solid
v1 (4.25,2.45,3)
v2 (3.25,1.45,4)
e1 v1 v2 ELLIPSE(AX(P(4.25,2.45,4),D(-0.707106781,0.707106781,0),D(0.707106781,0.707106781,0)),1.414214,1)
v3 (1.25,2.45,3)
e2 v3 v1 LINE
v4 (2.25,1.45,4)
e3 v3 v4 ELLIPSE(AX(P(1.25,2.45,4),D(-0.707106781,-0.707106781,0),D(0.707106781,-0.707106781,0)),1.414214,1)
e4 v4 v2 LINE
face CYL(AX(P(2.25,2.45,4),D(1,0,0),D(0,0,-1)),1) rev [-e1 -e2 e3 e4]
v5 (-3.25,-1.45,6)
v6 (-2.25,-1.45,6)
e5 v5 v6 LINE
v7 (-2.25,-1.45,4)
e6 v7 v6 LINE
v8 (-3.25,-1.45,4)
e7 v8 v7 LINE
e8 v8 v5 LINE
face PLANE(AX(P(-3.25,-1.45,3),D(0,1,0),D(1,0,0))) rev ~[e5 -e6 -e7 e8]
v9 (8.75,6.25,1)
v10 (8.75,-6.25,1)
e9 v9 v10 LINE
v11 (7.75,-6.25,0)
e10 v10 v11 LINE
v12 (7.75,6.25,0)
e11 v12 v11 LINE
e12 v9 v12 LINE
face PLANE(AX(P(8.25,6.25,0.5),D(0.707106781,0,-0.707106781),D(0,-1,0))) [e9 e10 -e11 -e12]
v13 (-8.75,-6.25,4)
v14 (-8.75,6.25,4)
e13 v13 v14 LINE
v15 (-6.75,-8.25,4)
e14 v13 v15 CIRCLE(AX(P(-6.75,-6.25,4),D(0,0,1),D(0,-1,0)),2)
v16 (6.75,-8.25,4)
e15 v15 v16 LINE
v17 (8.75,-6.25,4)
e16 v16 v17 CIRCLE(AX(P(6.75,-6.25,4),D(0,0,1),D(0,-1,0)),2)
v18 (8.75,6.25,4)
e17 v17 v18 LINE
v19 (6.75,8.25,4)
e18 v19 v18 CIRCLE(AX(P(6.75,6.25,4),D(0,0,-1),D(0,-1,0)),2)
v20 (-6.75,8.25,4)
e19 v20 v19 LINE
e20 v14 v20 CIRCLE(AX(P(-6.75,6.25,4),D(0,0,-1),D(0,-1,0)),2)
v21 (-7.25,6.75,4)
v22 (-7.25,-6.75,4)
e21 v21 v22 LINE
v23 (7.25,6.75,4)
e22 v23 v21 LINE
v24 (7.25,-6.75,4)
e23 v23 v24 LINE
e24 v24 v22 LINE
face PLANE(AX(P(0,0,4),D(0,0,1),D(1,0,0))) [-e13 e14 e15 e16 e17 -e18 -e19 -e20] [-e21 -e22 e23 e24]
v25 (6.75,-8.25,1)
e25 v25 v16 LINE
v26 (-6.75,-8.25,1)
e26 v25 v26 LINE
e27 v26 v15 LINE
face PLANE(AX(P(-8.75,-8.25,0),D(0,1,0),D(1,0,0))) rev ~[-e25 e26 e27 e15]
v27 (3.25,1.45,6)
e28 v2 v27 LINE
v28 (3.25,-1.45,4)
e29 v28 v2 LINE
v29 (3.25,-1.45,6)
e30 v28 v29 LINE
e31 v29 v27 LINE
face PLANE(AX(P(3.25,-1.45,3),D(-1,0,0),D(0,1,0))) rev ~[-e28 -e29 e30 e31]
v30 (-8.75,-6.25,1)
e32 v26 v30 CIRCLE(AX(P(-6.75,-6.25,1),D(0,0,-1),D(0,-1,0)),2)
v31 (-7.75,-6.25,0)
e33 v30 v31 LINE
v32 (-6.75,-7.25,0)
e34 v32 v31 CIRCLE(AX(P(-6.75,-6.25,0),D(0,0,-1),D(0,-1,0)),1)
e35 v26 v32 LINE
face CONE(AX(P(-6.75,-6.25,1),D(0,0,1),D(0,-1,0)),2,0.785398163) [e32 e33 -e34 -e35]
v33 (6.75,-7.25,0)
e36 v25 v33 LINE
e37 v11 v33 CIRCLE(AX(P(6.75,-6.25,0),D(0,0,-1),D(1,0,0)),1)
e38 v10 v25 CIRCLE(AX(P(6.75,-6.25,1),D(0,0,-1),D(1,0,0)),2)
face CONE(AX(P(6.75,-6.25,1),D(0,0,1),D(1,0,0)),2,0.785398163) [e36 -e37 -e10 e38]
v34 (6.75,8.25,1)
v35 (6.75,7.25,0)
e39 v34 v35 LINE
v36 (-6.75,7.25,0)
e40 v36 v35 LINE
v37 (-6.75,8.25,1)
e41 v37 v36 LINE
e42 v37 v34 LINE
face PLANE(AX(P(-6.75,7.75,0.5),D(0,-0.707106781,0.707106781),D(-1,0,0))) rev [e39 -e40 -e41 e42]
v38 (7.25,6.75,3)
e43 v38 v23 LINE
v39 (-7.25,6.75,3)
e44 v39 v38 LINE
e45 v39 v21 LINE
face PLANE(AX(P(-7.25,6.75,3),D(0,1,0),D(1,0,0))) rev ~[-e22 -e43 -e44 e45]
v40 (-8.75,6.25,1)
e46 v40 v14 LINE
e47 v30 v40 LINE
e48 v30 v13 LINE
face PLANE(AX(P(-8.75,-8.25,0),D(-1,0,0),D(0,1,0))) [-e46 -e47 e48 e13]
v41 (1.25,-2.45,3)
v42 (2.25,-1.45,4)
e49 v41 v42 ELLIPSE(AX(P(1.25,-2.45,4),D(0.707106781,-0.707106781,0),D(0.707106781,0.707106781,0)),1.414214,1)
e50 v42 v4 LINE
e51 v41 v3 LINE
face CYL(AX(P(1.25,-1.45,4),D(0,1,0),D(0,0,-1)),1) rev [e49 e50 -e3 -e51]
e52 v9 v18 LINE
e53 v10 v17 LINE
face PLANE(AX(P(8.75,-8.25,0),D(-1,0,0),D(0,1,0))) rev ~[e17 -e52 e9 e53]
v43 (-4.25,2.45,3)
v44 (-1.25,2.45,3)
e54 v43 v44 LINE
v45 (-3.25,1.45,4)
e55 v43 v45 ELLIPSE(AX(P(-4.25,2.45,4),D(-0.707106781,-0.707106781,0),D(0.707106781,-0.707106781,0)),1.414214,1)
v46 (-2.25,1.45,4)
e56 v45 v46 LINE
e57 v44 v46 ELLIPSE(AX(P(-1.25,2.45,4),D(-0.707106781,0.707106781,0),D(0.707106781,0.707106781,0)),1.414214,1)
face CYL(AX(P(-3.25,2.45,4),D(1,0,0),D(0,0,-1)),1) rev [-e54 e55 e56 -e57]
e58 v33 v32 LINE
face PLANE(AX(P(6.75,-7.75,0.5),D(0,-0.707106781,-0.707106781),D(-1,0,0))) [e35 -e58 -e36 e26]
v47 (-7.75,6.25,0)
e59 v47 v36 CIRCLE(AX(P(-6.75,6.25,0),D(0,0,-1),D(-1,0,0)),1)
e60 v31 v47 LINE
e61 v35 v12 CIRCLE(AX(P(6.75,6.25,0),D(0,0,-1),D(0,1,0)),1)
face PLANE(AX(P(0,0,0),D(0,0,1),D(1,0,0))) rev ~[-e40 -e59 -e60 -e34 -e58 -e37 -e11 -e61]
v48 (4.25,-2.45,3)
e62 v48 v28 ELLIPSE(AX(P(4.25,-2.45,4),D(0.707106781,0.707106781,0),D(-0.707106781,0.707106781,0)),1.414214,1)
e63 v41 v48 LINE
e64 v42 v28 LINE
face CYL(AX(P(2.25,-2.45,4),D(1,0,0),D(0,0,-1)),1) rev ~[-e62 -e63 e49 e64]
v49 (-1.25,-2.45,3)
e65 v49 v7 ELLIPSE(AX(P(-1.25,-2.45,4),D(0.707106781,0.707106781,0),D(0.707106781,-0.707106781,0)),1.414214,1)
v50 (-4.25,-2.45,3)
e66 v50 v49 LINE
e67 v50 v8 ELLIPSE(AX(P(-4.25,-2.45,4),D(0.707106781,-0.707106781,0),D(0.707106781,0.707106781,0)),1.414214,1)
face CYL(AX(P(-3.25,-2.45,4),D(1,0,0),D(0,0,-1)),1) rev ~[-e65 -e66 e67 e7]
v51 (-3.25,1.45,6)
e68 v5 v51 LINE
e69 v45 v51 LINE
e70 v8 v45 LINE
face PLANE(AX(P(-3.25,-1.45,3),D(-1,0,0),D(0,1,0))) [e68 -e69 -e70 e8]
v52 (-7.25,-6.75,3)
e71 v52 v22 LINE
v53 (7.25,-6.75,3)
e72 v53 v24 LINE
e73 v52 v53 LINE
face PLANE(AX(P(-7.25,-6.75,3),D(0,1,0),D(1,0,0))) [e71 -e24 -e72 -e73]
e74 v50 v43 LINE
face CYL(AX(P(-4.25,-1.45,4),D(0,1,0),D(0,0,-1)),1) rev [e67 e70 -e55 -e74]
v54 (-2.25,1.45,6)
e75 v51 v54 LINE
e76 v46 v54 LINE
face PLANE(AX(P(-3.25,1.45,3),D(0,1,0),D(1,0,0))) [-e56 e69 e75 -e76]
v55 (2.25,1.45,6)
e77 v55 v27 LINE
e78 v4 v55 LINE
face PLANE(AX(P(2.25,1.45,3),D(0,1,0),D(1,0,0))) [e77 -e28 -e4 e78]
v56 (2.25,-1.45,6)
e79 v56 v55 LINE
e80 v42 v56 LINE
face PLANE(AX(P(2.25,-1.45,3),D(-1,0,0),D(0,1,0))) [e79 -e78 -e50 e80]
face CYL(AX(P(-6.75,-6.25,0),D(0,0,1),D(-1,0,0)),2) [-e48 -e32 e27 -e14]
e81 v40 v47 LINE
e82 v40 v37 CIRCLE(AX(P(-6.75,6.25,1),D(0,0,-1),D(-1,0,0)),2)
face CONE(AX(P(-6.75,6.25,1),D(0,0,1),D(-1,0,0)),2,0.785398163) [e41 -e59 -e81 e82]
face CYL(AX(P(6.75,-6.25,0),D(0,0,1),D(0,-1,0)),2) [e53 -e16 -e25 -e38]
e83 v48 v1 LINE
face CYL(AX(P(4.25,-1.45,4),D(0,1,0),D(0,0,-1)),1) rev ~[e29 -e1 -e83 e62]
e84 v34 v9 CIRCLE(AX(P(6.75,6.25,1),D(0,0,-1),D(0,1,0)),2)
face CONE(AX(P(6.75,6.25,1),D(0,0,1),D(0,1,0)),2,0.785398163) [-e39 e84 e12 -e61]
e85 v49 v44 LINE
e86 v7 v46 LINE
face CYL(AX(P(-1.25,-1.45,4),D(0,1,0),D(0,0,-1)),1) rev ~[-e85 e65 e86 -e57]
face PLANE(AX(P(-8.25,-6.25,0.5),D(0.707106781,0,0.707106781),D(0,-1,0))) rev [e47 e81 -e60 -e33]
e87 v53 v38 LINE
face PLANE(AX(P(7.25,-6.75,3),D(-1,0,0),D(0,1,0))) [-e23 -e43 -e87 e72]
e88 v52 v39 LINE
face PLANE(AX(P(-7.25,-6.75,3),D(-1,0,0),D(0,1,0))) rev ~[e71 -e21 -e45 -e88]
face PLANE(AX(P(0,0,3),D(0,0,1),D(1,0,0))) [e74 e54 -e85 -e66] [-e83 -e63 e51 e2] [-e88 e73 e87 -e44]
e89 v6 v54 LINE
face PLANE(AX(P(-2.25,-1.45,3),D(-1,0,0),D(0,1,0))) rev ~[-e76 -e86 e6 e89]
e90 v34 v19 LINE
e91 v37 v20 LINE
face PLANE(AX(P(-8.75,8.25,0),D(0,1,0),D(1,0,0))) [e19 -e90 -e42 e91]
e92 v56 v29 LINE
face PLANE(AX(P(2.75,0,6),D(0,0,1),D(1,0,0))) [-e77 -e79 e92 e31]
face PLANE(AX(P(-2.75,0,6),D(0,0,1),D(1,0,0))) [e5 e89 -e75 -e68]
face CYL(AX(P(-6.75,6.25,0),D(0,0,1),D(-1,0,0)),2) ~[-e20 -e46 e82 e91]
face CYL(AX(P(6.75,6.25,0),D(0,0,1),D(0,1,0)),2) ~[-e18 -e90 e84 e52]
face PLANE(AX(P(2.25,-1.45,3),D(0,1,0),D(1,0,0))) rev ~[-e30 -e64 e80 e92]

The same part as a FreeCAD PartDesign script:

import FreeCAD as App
import Part
import Sketcher

V = App.Vector
Q = App.Units.Quantity


def edges_at(feature, points):
    """Names of the edges that pass closest to the given points."""
    edges = feature.Shape.Edges
    near = lambda p: min(range(len(edges)), key=lambda i: edges[i].distToShape(Part.Vertex(*p))[0])
    return sorted({f"Edge{near(p) + 1}" for p in points})


def add_polygon(sketch, points):
    """Adds a closed chain of lines whose ends are joined by coincident constraints."""
    first, n = sketch.GeometryCount, len(points)
    for a, b in zip(points, points[1:] + points[:1]):
        sketch.addGeometry(Part.LineSegment(App.Vector(*a, 0), App.Vector(*b, 0)), False)
    for i in range(n):
        sketch.addConstraint(Sketcher.Constraint("Coincident", first + i, 2, first + (i + 1) % n, 1))

doc = App.newDocument("Part")
params = doc.addObject("Spreadsheet::Sheet", "Params")
for row, (alias, value) in enumerate([
    ("sketch1_width", "17.5 mm"),
    ("sketch1_height", "16.5 mm"),
    ("pad1_length", "4 mm"),
    ("sketch2_width", "14.5 mm"),
    ("sketch2_height", "13.5 mm"),
    ("pocket1_length", "5 mm"),
    ("sketch3_width", "1 mm"),
    ("sketch3_height", "2.9 mm"),
    ("pad2_length", "3 mm"),
    ("fillet_radius", "1 mm"),
    ("fillet2_radius", "2 mm"),
    ("chamfer_size", "1 mm"),
], start=1):
    params.set(f"A{row}", alias)
    params.set(f"B{row}", "=" + value)
    params.setAlias(f"B{row}", alias)

body = doc.addObject("PartDesign::Body", "Body")

# Sketch on XY plane
sketch1 = body.newObject("Sketcher::SketchObject", "Sketch")
sketch1.AttachmentSupport = (doc.getObject("XY_Plane"), [""])
sketch1.MapMode = "FlatFace"
add_polygon(sketch1, [(-9, 8), (-9, -8), (9, -8), (9, 8)])  # lines 0-3
sketch1.addConstraint(Sketcher.Constraint("Vertical", 0))
sketch1.addConstraint(Sketcher.Constraint("Horizontal", 1))
sketch1.addConstraint(Sketcher.Constraint("Vertical", 2))
sketch1.addConstraint(Sketcher.Constraint("Horizontal", 3))
sketch1.addConstraint(Sketcher.Constraint("Symmetric", 0, 2, 2, 2, -1, 1))
sketch1.addConstraint(Sketcher.Constraint("DistanceX", 1, 1, 1, 2, Q("17.5 mm")))
sketch1.addConstraint(Sketcher.Constraint("DistanceY", 0, 2, 0, 1, Q("16.5 mm")))
sketch1.setExpression("Constraints[9]", "Params.sketch1_width")
sketch1.setExpression("Constraints[10]", "Params.sketch1_height")
pad1 = body.newObject("PartDesign::Pad", "Pad")
pad1.Profile = sketch1
pad1.setExpression("Length", "Params.pad1_length")

# Sketch on XY plane
sketch2 = body.newObject("Sketcher::SketchObject", "Sketch001")
sketch2.AttachmentSupport = (doc.getObject("XY_Plane"), [""])
sketch2.MapMode = "FlatFace"
sketch2.AttachmentOffset = App.Placement(V(0, 0, 3), App.Rotation())
add_polygon(sketch2, [(-7, 7), (-7, -7), (7, -7), (7, 7)])  # lines 0-3
sketch2.addConstraint(Sketcher.Constraint("Vertical", 0))
sketch2.addConstraint(Sketcher.Constraint("Horizontal", 1))
sketch2.addConstraint(Sketcher.Constraint("Vertical", 2))
sketch2.addConstraint(Sketcher.Constraint("Horizontal", 3))
sketch2.addConstraint(Sketcher.Constraint("Symmetric", 0, 2, 2, 2, -1, 1))
sketch2.addConstraint(Sketcher.Constraint("DistanceX", 1, 1, 1, 2, Q("14.5 mm")))
sketch2.addConstraint(Sketcher.Constraint("DistanceY", 0, 2, 0, 1, Q("13.5 mm")))
sketch2.setExpression("Constraints[9]", "Params.sketch2_width")
sketch2.setExpression("Constraints[10]", "Params.sketch2_height")
pocket1 = body.newObject("PartDesign::Pocket", "Pocket")
pocket1.Profile = sketch2
pocket1.setExpression("Length", "Params.pocket1_length")
pocket1.Reversed = True

# Sketch on XY plane
sketch3 = body.newObject("Sketcher::SketchObject", "Sketch002")
sketch3.AttachmentSupport = (doc.getObject("XY_Plane"), [""])
sketch3.MapMode = "FlatFace"
sketch3.AttachmentOffset = App.Placement(V(0, 0, 3), App.Rotation())
add_polygon(sketch3, [(-3.2, 1.4), (-3.2, -1.4), (-2.2, -1.4), (-2.2, 1.4)])  # lines 0-3
add_polygon(sketch3, [(2.2, 1.4), (2.2, -1.4), (3.2, -1.4), (3.2, 1.4)])  # lines 4-7
sketch3.addConstraint(Sketcher.Constraint("Vertical", 0))
sketch3.addConstraint(Sketcher.Constraint("Horizontal", 1))
sketch3.addConstraint(Sketcher.Constraint("Vertical", 2))
sketch3.addConstraint(Sketcher.Constraint("Horizontal", 3))
sketch3.addConstraint(Sketcher.Constraint("Vertical", 4))
sketch3.addConstraint(Sketcher.Constraint("Horizontal", 5))
sketch3.addConstraint(Sketcher.Constraint("Vertical", 6))
sketch3.addConstraint(Sketcher.Constraint("Horizontal", 7))
sketch3.addConstraint(Sketcher.Constraint("Symmetric", 2, 2, 4, 2, -1, 1))
sketch3.addConstraint(Sketcher.Constraint("Symmetric", 0, 2, 6, 2, -1, 1))
sketch3.addConstraint(Sketcher.Constraint("Horizontal", 1, 2, 4, 2))
sketch3.addConstraint(Sketcher.Constraint("DistanceX", 1, 1, 1, 2, Q("1 mm")))
sketch3.addConstraint(Sketcher.Constraint("DistanceY", 0, 2, 0, 1, Q("2.9 mm")))
sketch3.addConstraint(Sketcher.Constraint("DistanceX", 1, 2, 4, 2, Q("4.5 mm")))
sketch3.setExpression("Constraints[19]", "Params.sketch3_width")
sketch3.setExpression("Constraints[20]", "Params.sketch3_height")
pad2 = body.newObject("PartDesign::Pad", "Pad001")
pad2.Profile = sketch3
pad2.setExpression("Length", "Params.pad2_length")
doc.recompute()

fillet = body.newObject("PartDesign::Fillet", "Fillet")
fillet.Base = (pad2, edges_at(pad2, [
    (2.75, 1.45, 3),
    (3.25, 0, 3),
    (2.75, -1.45, 3),
    (2.25, 0, 3),
    (-2.75, 1.45, 3),
    (-3.25, 0, 3),
    (-2.75, -1.45, 3),
    (-2.25, 0, 3),
]))
fillet.setExpression("Radius", "Params.fillet_radius")
doc.recompute()

fillet2 = body.newObject("PartDesign::Fillet", "Fillet001")
fillet2.Base = (fillet, edges_at(fillet, [
    (-8.75, 8.25, 2),
    (8.75, 8.25, 2),
    (8.75, -8.25, 2),
    (-8.75, -8.25, 2),
]))
fillet2.setExpression("Radius", "Params.fillet2_radius")
doc.recompute()

chamfer = body.newObject("PartDesign::Chamfer", "Chamfer")
chamfer.Base = (fillet2, edges_at(fillet2, [
    (-8.75, 0, 0),
    (-8.164, 7.664, 0),
    (-8.164, -7.664, 0),
    (0, 8.25, 0),
    (0, -8.25, 0),
    (8.164, 7.664, 0),
    (8.164, -7.664, 0),
    (8.75, 0, 0),
]))
chamfer.setExpression("Size", "Params.chamfer_size")

doc.recompute()
